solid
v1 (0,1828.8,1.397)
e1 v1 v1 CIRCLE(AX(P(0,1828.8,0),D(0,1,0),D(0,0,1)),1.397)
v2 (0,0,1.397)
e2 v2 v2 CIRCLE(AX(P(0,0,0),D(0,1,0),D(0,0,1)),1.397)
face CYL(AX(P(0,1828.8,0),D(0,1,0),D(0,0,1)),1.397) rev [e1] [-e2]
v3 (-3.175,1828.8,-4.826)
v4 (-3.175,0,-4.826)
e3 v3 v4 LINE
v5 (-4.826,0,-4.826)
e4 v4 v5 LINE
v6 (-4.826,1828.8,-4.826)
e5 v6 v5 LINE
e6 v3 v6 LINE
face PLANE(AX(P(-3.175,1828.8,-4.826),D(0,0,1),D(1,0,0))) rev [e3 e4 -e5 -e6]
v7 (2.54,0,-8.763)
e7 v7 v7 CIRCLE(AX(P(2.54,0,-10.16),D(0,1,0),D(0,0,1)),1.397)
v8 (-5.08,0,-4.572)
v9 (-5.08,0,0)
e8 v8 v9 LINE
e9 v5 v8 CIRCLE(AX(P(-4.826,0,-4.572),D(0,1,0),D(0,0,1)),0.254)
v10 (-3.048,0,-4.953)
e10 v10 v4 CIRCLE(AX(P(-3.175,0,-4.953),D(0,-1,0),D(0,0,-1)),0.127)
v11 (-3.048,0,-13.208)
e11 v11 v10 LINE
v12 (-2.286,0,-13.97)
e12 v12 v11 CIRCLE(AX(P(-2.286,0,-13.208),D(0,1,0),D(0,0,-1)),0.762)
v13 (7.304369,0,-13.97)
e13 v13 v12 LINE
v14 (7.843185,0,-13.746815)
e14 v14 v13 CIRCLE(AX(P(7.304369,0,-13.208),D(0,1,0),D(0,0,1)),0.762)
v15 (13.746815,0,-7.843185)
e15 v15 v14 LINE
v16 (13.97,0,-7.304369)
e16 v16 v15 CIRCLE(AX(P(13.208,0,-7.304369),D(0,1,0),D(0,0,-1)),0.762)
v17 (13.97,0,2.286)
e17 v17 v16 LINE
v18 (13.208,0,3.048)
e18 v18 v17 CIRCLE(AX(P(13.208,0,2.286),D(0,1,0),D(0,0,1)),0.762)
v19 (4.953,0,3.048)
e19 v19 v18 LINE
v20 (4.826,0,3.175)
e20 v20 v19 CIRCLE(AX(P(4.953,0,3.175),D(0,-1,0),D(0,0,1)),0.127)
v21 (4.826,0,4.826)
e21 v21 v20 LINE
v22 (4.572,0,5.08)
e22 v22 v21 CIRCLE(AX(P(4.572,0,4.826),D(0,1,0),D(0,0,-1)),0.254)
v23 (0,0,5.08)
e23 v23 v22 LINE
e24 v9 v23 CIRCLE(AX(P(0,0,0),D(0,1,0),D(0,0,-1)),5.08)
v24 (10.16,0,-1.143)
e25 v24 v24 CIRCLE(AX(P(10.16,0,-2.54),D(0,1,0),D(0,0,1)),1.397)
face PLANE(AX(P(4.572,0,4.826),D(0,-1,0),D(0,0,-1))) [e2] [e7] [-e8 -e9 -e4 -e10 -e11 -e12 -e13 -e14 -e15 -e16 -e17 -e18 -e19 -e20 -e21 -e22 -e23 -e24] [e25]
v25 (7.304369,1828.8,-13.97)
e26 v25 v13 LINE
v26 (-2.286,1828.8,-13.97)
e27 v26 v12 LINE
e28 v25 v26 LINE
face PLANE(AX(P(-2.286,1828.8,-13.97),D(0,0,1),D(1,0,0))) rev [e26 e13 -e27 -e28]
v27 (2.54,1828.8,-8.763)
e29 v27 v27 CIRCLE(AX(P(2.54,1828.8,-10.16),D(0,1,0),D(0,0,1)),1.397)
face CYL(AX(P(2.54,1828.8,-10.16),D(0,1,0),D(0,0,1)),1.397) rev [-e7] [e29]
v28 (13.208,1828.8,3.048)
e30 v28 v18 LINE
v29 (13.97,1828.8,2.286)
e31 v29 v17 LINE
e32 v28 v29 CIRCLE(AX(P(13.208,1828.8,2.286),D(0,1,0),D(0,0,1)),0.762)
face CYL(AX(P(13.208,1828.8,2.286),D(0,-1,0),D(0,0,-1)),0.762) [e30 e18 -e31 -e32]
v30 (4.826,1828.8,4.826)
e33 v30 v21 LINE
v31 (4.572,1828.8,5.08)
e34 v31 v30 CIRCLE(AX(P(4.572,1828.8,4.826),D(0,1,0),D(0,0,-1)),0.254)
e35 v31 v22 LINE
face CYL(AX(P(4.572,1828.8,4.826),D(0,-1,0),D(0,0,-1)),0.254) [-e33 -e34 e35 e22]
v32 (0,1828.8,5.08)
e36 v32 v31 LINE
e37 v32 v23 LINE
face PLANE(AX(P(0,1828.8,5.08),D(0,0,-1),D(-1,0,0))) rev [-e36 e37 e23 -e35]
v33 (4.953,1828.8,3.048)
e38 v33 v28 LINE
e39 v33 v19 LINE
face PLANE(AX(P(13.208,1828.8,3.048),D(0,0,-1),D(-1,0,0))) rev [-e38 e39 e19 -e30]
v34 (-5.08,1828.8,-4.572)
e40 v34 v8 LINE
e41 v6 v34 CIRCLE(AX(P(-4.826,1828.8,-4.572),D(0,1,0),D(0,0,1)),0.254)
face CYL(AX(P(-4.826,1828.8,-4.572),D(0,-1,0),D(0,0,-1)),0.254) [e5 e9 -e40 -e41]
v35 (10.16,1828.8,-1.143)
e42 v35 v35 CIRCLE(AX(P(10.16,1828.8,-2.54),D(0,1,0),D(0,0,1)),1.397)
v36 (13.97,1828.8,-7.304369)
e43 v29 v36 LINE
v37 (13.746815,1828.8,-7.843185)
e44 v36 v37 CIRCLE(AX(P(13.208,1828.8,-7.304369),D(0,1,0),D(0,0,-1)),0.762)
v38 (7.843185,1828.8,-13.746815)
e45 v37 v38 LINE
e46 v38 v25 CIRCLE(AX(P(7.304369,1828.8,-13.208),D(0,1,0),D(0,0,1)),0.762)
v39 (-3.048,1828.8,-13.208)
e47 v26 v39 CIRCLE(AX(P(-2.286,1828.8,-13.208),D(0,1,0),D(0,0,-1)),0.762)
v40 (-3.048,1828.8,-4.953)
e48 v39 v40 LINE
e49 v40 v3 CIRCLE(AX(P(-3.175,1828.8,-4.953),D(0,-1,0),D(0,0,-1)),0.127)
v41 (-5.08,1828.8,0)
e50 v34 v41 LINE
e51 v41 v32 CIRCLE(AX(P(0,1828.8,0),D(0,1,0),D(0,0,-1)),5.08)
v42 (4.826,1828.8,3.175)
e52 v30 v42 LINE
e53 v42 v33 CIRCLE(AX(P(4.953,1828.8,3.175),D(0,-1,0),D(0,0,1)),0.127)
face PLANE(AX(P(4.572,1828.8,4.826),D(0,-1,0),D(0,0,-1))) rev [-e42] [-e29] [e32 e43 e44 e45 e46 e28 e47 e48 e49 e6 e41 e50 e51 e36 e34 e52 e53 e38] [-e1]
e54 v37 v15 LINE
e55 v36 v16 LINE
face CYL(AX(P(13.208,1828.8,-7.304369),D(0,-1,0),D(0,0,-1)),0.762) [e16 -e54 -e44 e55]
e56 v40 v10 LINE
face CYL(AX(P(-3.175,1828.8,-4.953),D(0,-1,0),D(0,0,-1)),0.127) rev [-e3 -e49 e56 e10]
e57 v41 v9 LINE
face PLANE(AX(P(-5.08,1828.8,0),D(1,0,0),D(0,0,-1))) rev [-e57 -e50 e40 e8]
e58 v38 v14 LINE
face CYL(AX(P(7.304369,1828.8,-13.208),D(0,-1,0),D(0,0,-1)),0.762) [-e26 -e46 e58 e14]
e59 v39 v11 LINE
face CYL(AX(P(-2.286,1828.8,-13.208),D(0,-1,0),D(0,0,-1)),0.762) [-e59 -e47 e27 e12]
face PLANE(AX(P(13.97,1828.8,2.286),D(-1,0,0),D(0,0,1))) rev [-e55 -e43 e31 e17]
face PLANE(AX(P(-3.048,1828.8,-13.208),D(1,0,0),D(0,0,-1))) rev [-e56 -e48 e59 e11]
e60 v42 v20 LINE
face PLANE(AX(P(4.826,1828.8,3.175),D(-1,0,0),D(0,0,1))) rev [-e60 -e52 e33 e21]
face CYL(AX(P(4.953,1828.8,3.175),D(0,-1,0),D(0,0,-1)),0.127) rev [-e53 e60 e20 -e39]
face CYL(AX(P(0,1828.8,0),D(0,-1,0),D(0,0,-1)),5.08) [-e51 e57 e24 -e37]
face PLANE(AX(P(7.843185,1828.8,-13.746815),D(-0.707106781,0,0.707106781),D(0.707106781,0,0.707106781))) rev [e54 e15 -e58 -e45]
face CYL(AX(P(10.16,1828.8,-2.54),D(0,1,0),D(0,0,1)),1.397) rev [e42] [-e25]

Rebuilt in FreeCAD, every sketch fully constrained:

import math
import FreeCAD as App
import Part
import Sketcher
from FreeCAD import Vector
Q = App.Units.Quantity

doc = App.newDocument("Part")
body = doc.addObject("PartDesign::Body", "Body")

# Sketch on XZ plane
sketch1 = body.newObject("Sketcher::SketchObject", "Sketch")
sketch1.AttachmentSupport = (doc.getObject("XZ_Plane"), [""])
sketch1.MapMode = "FlatFace"
sketch1.addGeometry(Part.LineSegment(Vector(-3.05, -13.21, 0), Vector(-3.05, -4.95, 0)), False)
sketch1.addGeometry(Part.ArcOfCircle(Part.Circle(Vector(-3.18, -4.95, 0), Vector(0, 0, 1), 0.13), math.radians(0), math.radians(90)), False)
sketch1.addGeometry(Part.LineSegment(Vector(-3.17, -4.83, 0), Vector(-4.83, -4.83, 0)), False)
sketch1.addGeometry(Part.ArcOfCircle(Part.Circle(Vector(-4.83, -4.57, 0), Vector(0, 0, 1), 0.25), math.radians(-180), math.radians(-90)), False)
sketch1.addGeometry(Part.LineSegment(Vector(-5.08, -4.57, 0), Vector(-5.08, 0, 0)), False)
sketch1.addGeometry(Part.ArcOfCircle(Part.Circle(Vector(0, 0, 0), Vector(0, 0, 1), 5.08), math.radians(90), math.radians(180)), False)
sketch1.addGeometry(Part.LineSegment(Vector(0, 5.08, 0), Vector(4.57, 5.08, 0)), False)
sketch1.addGeometry(Part.ArcOfCircle(Part.Circle(Vector(4.57, 4.83, 0), Vector(0, 0, 1), 0.25), math.radians(0), math.radians(90)), False)
sketch1.addGeometry(Part.LineSegment(Vector(4.83, 4.83, 0), Vector(4.83, 3.17, 0)), False)
sketch1.addGeometry(Part.ArcOfCircle(Part.Circle(Vector(4.95, 3.18, 0), Vector(0, 0, 1), 0.13), math.radians(-180), math.radians(-90)), False)
sketch1.addGeometry(Part.LineSegment(Vector(4.95, 3.05, 0), Vector(13.21, 3.05, 0)), False)
sketch1.addGeometry(Part.ArcOfCircle(Part.Circle(Vector(13.21, 2.29, 0), Vector(0, 0, 1), 0.76), math.radians(0), math.radians(90)), False)
sketch1.addGeometry(Part.LineSegment(Vector(13.97, 2.29, 0), Vector(13.97, -7.3, 0)), False)
sketch1.addGeometry(Part.ArcOfCircle(Part.Circle(Vector(13.21, -7.3, 0), Vector(0, 0, 1), 0.76), math.radians(-45), math.radians(0)), False)
sketch1.addGeometry(Part.LineSegment(Vector(13.75, -7.84, 0), Vector(7.84, -13.75, 0)), False)
sketch1.addGeometry(Part.ArcOfCircle(Part.Circle(Vector(7.3, -13.21, 0), Vector(0, 0, 1), 0.76), math.radians(-90), math.radians(-45)), False)
sketch1.addGeometry(Part.LineSegment(Vector(7.3, -13.97, 0), Vector(-2.29, -13.97, 0)), False)
sketch1.addGeometry(Part.ArcOfCircle(Part.Circle(Vector(-2.29, -13.21, 0), Vector(0, 0, 1), 0.76), math.radians(-180), math.radians(-90)), False)
sketch1.addConstraint(Sketcher.Constraint("Tangent", 0, 2, 1, 1))
sketch1.addConstraint(Sketcher.Constraint("Tangent", 1, 2, 2, 1))
sketch1.addConstraint(Sketcher.Constraint("Tangent", 2, 2, 3, 2))
sketch1.addConstraint(Sketcher.Constraint("Tangent", 3, 1, 4, 1))
sketch1.addConstraint(Sketcher.Constraint("Tangent", 4, 2, 5, 2))
sketch1.addConstraint(Sketcher.Constraint("Tangent", 5, 1, 6, 1))
sketch1.addConstraint(Sketcher.Constraint("Tangent", 6, 2, 7, 2))
sketch1.addConstraint(Sketcher.Constraint("Tangent", 7, 1, 8, 1))
sketch1.addConstraint(Sketcher.Constraint("Tangent", 8, 2, 9, 1))
sketch1.addConstraint(Sketcher.Constraint("Tangent", 9, 2, 10, 1))
sketch1.addConstraint(Sketcher.Constraint("Tangent", 10, 2, 11, 2))
sketch1.addConstraint(Sketcher.Constraint("Tangent", 11, 1, 12, 1))
sketch1.addConstraint(Sketcher.Constraint("Tangent", 12, 2, 13, 2))
sketch1.addConstraint(Sketcher.Constraint("Tangent", 13, 1, 14, 1))
sketch1.addConstraint(Sketcher.Constraint("Tangent", 14, 2, 15, 2))
sketch1.addConstraint(Sketcher.Constraint("Tangent", 15, 1, 16, 1))
sketch1.addConstraint(Sketcher.Constraint("Tangent", 16, 2, 17, 2))
sketch1.addConstraint(Sketcher.Constraint("Tangent", 17, 1, 0, 1))
sketch1.addConstraint(Sketcher.Constraint("Vertical", 0))
sketch1.addConstraint(Sketcher.Constraint("Horizontal", 2))
sketch1.addConstraint(Sketcher.Constraint("Vertical", 4))
sketch1.addConstraint(Sketcher.Constraint("Horizontal", 6))
sketch1.addConstraint(Sketcher.Constraint("Vertical", 8))
sketch1.addConstraint(Sketcher.Constraint("Horizontal", 10))
sketch1.addConstraint(Sketcher.Constraint("Vertical", 12))
sketch1.addConstraint(Sketcher.Constraint("Horizontal", 16))
sketch1.addConstraint(Sketcher.Constraint("Coincident", 5, 3, -1, 1))
sketch1.addConstraint(Sketcher.Constraint("Equal", 3, 7))
sketch1.addConstraint(Sketcher.Constraint("Equal", 1, 9))
sketch1.addConstraint(Sketcher.Constraint("Equal", 11, 13))
sketch1.addConstraint(Sketcher.Constraint("Equal", 13, 15))
sketch1.addConstraint(Sketcher.Constraint("Equal", 15, 17))
sketch1.addConstraint(Sketcher.Constraint("Symmetric", 2, 2, 7, 1, -1, 1))
sketch1.addConstraint(Sketcher.Constraint("Equal", 10, 0))
sketch1.addConstraint(Sketcher.Constraint("Equal", 2, 8))
sketch1.addConstraint(Sketcher.Constraint("Equal", 16, 12))
sketch1.addConstraint(Sketcher.Constraint("Radius", 5, Q("0.2 in")))
sketch1.addConstraint(Sketcher.Constraint("Radius", 3, Q("0.01 in")))
sketch1.addConstraint(Sketcher.Constraint("Radius", 11, Q("0.03 in")))
sketch1.addConstraint(Sketcher.Constraint("Radius", 1, Q("0.005 in")))
sketch1.addConstraint(Sketcher.Constraint("DistanceY", 11, 3, 7, 3, Q("0.1 in")))
sketch1.addConstraint(Sketcher.Constraint("DistanceX", 10, 1, 10, 2, Q("0.325 in")))
sketch1.addConstraint(Sketcher.Constraint("DistanceX", 16, 2, 16, 1, 9.590369))
pad1 = body.newObject("PartDesign::Pad", "Pad")
pad1.Profile = sketch1
pad1.Length = Q("72 in")
pad1.Reversed = True

# Sketch on XZ plane
sketch2 = body.newObject("Sketcher::SketchObject", "Sketch001")
sketch2.AttachmentSupport = (doc.getObject("XZ_Plane"), [""])
sketch2.MapMode = "FlatFace"
sketch2.AttachmentOffset = App.Placement(Vector(0, 0, -72 * 25.4), App.Rotation())
sketch2.addGeometry(Part.Circle(Vector(0, 0, 0), Vector(0, 0, 1), 1.4), False)
sketch2.addGeometry(Part.Circle(Vector(2.5, -10.2, 0), Vector(0, 0, 1), 1.4), False)
sketch2.addGeometry(Part.Circle(Vector(10.2, -2.5, 0), Vector(0, 0, 1), 1.4), False)
sketch2.addConstraint(Sketcher.Constraint("Coincident", 0, 3, -1, 1))
sketch2.addConstraint(Sketcher.Constraint("Equal", 0, 1))
sketch2.addConstraint(Sketcher.Constraint("Equal", 1, 2))
sketch2.addConstraint(Sketcher.Constraint("Diameter", 0, Q("0.11 in")))
sketch2.addConstraint(Sketcher.Constraint("DistanceX", -1, 1, 1, 3, Q("0.1 in")))
sketch2.addConstraint(Sketcher.Constraint("DistanceY", 1, 3, -1, 1, Q("0.4 in")))
sketch2.addConstraint(Sketcher.Constraint("DistanceX", -1, 1, 2, 3, Q("0.4 in")))
sketch2.addConstraint(Sketcher.Constraint("DistanceY", 2, 3, -1, 1, Q("0.1 in")))
doc.recompute()
hole = body.newObject("PartDesign::Hole", "Hole")
hole.Profile = sketch2
hole.ThreadType = "None"
hole.Diameter = Q("0.11 in")
hole.DepthType = "ThroughAll"
hole.Reversed = True

doc.recompute()
